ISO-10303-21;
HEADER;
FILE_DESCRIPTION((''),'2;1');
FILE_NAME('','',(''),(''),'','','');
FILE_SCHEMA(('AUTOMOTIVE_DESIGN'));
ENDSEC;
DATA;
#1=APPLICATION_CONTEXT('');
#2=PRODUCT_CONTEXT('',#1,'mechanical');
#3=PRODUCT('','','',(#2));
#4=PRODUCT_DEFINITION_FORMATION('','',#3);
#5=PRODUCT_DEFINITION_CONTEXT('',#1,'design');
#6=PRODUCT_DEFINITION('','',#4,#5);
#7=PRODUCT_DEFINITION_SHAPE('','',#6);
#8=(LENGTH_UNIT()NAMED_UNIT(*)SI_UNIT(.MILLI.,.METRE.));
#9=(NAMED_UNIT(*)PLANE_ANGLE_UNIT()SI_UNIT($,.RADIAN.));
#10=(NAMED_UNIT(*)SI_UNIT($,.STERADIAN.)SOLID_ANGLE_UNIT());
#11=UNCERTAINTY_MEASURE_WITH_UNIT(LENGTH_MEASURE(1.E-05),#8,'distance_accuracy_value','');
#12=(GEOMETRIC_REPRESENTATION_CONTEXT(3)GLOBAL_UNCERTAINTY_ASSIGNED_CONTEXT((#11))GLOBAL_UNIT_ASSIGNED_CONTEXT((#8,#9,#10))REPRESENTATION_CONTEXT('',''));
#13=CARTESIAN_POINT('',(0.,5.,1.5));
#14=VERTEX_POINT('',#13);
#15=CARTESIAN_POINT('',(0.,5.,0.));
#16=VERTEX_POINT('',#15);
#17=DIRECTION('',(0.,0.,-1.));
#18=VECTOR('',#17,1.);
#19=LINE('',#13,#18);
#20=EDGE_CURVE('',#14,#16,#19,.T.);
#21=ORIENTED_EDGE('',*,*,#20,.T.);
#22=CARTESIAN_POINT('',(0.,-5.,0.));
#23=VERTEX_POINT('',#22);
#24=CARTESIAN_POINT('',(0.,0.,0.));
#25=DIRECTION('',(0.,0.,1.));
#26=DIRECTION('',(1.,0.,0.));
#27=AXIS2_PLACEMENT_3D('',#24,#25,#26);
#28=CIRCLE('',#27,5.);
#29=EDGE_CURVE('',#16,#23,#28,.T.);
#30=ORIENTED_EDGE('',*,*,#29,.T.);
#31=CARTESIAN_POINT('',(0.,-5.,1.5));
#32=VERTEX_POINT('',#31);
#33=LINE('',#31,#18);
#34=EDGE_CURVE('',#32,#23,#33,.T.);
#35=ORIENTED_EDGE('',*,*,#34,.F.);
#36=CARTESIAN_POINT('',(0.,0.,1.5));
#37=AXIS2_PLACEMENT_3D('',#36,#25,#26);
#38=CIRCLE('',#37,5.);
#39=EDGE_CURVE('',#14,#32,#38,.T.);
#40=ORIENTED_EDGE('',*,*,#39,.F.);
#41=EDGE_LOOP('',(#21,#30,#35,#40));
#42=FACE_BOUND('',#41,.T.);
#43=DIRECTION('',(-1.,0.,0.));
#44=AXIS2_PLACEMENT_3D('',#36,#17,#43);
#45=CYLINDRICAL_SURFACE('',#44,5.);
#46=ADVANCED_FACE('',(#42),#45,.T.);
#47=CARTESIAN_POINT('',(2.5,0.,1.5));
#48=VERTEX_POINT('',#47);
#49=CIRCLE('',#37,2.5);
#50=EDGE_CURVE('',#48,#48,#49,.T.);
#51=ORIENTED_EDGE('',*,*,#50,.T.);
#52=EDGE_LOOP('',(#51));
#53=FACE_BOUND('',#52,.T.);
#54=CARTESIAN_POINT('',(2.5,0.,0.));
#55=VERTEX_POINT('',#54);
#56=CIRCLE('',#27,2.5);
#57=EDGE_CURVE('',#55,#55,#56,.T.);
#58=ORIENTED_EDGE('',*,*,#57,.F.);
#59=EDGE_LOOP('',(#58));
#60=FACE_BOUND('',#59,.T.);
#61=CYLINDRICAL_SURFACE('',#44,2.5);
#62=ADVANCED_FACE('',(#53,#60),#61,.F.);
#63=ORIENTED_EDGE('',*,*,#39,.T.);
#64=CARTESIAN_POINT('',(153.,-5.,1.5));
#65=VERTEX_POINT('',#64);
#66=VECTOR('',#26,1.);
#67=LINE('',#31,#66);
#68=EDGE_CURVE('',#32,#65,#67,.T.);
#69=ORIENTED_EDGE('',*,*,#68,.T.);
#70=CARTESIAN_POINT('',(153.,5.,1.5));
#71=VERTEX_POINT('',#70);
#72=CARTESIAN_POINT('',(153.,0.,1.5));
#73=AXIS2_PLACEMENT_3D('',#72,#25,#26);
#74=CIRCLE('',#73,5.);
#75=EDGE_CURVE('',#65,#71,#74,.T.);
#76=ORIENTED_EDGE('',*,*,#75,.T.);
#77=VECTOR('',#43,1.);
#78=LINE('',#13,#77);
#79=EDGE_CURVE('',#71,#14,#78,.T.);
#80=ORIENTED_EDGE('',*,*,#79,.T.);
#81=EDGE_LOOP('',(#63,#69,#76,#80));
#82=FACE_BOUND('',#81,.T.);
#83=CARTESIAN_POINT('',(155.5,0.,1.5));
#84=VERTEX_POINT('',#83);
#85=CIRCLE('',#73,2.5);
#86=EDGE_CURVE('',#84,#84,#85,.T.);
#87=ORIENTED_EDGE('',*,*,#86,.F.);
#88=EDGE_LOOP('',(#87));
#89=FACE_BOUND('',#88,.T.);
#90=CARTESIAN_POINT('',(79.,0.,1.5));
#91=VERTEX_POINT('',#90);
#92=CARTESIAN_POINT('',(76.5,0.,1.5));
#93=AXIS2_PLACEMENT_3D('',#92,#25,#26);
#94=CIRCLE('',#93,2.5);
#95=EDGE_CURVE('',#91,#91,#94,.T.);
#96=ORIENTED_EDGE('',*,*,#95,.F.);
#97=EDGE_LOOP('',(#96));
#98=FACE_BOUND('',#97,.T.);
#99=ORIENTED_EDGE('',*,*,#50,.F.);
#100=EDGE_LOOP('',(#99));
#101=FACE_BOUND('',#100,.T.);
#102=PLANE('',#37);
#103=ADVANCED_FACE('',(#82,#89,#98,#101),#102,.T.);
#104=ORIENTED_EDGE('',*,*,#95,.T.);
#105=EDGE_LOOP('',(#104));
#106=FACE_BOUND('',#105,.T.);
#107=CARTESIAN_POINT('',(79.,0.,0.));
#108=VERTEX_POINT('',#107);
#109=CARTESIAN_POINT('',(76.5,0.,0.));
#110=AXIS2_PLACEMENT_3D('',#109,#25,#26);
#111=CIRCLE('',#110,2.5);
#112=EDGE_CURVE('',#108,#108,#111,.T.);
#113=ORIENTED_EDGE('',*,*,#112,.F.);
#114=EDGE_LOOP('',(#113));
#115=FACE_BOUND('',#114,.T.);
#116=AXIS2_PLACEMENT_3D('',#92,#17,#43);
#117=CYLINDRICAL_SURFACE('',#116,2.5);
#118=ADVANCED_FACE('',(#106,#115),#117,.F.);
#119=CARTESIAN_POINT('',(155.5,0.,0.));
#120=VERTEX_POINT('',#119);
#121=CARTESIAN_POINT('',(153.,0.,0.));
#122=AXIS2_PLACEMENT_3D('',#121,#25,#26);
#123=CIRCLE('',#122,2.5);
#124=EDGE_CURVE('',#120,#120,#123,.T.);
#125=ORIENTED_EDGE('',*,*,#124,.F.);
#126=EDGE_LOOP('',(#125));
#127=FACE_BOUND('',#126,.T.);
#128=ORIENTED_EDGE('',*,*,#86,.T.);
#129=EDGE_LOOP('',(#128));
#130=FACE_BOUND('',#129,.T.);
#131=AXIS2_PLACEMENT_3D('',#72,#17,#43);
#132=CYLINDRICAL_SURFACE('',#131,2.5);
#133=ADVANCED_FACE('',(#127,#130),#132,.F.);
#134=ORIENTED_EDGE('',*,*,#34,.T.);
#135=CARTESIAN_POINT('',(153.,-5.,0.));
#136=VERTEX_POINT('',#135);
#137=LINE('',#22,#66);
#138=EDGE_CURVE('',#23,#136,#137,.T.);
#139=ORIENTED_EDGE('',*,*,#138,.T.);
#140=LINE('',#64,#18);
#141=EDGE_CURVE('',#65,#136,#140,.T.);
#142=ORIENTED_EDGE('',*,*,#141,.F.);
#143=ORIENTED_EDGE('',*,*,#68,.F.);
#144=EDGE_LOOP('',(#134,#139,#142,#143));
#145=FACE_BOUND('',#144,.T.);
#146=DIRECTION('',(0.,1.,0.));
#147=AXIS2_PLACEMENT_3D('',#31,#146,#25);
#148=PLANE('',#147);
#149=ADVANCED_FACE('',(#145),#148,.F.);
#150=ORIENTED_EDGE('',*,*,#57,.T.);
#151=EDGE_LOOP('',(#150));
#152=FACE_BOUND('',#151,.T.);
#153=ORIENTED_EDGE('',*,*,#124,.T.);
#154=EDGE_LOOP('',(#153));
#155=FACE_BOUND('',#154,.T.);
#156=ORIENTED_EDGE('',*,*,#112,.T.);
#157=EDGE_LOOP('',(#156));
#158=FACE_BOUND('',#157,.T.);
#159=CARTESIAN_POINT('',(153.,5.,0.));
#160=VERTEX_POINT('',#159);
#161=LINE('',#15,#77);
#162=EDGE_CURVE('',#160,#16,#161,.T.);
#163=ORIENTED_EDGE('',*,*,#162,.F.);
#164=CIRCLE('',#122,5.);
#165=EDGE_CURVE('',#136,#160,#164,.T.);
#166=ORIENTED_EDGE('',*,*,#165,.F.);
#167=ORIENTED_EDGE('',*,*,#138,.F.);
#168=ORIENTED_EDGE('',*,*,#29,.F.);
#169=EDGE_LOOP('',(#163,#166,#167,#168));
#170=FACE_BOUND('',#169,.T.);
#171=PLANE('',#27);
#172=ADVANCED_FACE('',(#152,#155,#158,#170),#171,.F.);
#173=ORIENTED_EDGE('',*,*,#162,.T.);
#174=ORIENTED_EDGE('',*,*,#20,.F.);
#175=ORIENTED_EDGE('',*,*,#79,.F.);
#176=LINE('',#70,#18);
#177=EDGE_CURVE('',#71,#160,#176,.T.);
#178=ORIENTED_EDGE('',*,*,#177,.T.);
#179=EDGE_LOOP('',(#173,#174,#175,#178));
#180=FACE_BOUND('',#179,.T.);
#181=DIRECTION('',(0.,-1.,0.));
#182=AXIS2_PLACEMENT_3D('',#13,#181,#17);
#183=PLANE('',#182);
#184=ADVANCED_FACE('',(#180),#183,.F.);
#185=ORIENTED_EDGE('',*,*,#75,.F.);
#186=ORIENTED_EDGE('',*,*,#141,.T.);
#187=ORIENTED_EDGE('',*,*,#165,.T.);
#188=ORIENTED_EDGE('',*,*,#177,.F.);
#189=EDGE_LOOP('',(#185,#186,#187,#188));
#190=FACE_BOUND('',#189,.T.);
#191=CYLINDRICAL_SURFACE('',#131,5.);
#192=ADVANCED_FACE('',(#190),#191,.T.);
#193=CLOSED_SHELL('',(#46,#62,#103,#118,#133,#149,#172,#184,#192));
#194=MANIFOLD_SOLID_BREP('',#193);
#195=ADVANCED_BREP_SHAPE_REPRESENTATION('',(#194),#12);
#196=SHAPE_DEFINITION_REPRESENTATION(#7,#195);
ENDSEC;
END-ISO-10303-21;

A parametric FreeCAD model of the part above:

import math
import FreeCAD as App
import Part
import Sketcher

V = App.Vector
Q = App.Units.Quantity

doc = App.newDocument("Part")
body = doc.addObject("PartDesign::Body", "Body")

# Sketch on XY plane
sketch1 = body.newObject("Sketcher::SketchObject", "Sketch")
sketch1.AttachmentSupport = (doc.getObject("XY_Plane"), [""])
sketch1.MapMode = "FlatFace"
sketch1.addGeometry([
    Part.LineSegment(V(153, 5, 0), V(0, 5, 0)),  # 0
    Part.ArcOfCircle(Part.Circle(V(0, 0, 0), V(0, 0, 1), 5), math.radians(90), math.radians(270)),  # 1
    Part.LineSegment(V(0, -5, 0), V(153, -5, 0)),  # 2
    Part.ArcOfCircle(Part.Circle(V(153, 0, 0), V(0, 0, 1), 5), math.radians(-90), math.radians(90)),  # 3
    Part.Circle(V(153, 0, 0), V(0, 0, 1), 2.5),  # 4
    Part.Circle(V(76.5, 0, 0), V(0, 0, 1), 2.5),  # 5
    Part.Circle(V(0, 0, 0), V(0, 0, 1), 2.5),  # 6
], False)
sketch1.addConstraint([
    Sketcher.Constraint("Tangent", 0, 2, 1, 1),
    Sketcher.Constraint("Tangent", 1, 2, 2, 1),
    Sketcher.Constraint("Tangent", 2, 2, 3, 1),
    Sketcher.Constraint("Tangent", 3, 2, 0, 1),
    Sketcher.Constraint("Horizontal", 0),
    Sketcher.Constraint("Horizontal", 2),
    Sketcher.Constraint("Coincident", 1, 3, -1, 1),
    Sketcher.Constraint("Coincident", 6, 3, -1, 1),
    Sketcher.Constraint("Coincident", 4, 3, 3, 3),
    Sketcher.Constraint("Equal", 4, 5),
    Sketcher.Constraint("Equal", 5, 6),
    Sketcher.Constraint("PointOnObject", 5, 3, -1),
    Sketcher.Constraint("Diameter", 4, Q("5 mm")),
    Sketcher.Constraint("Radius", 1, Q("5 mm")),
    Sketcher.Constraint("DistanceX", 0, 2, 0, 1, Q("153 mm")),
    Sketcher.Constraint("DistanceX", -1, 1, 5, 3, Q("76.5 mm")),
])
pad1 = body.newObject("PartDesign::Pad", "Pad")
pad1.Profile = sketch1
pad1.Length = 1.5

doc.recompute()
